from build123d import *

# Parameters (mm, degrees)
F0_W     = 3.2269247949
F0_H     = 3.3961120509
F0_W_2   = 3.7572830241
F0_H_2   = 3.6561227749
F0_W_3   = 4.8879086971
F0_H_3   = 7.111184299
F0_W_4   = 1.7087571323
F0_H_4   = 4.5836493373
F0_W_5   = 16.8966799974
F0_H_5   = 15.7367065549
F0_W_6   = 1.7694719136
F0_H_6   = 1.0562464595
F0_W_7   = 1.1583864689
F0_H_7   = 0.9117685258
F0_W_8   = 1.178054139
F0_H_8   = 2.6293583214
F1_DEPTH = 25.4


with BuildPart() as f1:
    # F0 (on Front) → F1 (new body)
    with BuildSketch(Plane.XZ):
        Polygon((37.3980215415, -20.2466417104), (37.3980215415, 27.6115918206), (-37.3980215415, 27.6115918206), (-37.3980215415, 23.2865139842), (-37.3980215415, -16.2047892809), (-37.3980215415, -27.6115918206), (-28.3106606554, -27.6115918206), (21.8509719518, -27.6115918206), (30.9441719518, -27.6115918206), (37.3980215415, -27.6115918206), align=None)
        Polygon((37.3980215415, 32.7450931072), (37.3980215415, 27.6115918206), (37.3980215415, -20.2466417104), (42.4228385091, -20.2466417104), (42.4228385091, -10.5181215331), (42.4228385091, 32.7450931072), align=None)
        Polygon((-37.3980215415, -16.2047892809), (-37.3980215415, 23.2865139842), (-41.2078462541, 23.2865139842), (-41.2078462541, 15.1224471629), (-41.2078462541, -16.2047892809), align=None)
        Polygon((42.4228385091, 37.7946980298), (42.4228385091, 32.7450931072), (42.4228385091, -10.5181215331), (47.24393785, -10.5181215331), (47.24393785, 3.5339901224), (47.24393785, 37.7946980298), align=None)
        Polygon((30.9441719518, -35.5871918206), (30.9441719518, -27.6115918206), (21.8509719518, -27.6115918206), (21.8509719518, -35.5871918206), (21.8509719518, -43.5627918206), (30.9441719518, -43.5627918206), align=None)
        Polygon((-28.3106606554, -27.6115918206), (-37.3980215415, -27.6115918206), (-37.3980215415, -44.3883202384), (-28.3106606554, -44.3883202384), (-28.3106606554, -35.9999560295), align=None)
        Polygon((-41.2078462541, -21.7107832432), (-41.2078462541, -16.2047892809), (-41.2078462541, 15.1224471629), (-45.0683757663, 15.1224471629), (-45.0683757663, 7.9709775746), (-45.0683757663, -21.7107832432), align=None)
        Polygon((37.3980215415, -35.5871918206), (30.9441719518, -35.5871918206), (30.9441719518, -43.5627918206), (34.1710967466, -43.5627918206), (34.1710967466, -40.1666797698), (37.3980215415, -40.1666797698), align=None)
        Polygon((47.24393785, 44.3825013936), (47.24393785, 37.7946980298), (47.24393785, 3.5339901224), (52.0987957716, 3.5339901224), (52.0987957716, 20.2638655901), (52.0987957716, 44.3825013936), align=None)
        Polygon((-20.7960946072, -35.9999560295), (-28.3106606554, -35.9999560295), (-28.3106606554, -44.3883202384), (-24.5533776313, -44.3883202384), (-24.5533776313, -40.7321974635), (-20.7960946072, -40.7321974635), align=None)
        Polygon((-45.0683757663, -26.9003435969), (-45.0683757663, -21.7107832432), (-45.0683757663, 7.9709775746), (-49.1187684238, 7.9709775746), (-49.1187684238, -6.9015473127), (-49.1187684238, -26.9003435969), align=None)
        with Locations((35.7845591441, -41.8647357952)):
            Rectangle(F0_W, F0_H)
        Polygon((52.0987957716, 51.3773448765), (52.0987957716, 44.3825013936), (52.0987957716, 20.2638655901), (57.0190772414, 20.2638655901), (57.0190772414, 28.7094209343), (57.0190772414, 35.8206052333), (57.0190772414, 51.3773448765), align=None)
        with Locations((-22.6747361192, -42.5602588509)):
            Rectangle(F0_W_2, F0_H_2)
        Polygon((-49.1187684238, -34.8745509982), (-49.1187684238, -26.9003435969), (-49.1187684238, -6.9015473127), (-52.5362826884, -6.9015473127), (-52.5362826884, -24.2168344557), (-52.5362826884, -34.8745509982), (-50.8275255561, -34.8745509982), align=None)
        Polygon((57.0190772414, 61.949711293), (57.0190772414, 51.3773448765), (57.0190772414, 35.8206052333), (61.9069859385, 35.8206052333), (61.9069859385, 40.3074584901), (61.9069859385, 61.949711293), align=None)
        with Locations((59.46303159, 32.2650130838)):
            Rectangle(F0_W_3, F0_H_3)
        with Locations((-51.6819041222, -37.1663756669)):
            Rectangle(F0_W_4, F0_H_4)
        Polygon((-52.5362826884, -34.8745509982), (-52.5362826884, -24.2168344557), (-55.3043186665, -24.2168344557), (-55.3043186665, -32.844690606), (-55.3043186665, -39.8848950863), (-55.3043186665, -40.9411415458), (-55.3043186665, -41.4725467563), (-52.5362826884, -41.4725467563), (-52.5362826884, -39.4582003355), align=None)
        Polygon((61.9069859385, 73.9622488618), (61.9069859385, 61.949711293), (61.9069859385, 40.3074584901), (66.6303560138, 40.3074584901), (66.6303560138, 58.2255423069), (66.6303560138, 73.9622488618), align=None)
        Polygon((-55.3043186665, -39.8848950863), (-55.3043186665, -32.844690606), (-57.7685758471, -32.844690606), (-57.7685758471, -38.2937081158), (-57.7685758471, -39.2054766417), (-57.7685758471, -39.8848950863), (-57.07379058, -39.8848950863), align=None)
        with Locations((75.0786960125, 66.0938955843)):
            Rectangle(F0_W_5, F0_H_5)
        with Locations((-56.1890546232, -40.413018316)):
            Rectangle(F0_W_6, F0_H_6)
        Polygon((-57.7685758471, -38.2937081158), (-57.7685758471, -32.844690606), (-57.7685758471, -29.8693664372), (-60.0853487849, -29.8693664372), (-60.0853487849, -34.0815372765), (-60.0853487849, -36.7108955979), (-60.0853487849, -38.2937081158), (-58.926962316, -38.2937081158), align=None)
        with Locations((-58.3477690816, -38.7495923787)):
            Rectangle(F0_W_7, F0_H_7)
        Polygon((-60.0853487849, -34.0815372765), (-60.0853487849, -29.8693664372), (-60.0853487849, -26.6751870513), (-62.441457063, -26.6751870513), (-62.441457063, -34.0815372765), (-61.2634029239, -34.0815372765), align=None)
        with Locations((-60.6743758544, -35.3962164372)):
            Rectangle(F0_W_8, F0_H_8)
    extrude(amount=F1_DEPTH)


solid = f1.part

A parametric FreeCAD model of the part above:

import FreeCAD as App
import Part
import Sketcher
from FreeCAD import Vector
Q = App.Units.Quantity


def add_polygon(sketch, points):
    """Adds a closed chain of lines whose ends are joined by coincident constraints."""
    first, n = sketch.GeometryCount, len(points)
    for a, b in zip(points, points[1:] + points[:1]):
        sketch.addGeometry(Part.LineSegment(App.Vector(*a, 0), App.Vector(*b, 0)), False)
    for i in range(n):
        sketch.addConstraint(Sketcher.Constraint("Coincident", first + i, 2, first + (i + 1) % n, 1))

doc = App.newDocument("Part")
body = doc.addObject("PartDesign::Body", "Body")

# Sketch on XZ plane
sketch1 = doc.addObject("Sketcher::SketchObject", "Sketch")
body.addObject(sketch1)
sketch1.AttachmentSupport = (doc.XZ_Plane, [""])
sketch1.MapMode = "FlatFace"
add_polygon(sketch1, [(37.4, 27.6), (-37.4, 27.6), (-37.4, 23.3), (-41.2, 23.3), (-41.2, 15.1), (-45.1, 15.1), (-45.1, 8), (-49.1, 8), (-49.1, -6.9), (-52.5, -6.9), (-52.5, -24.2), (-55.3, -24.2), (-55.3, -32.8), (-57.8, -32.8), (-57.8, -29.9), (-60.1, -29.9), (-60.1, -26.7), (-62.4, -26.7), (-62.4, -34.1), (-61.3, -34.1), (-61.3, -36.7), (-60.1, -36.7), (-60.1, -38.3), (-58.9, -38.3), (-58.9, -39.2), (-57.8, -39.2), (-57.8, -39.9), (-57.1, -39.9), (-57.1, -40.9), (-55.3, -40.9), (-55.3, -41.5), (-52.5, -41.5), (-52.5, -39.5), (-50.8, -39.5), (-50.8, -34.9), (-49.1, -34.9), (-49.1, -26.9), (-45.1, -26.9), (-45.1, -21.7), (-41.2, -21.7), (-41.2, -16.2), (-37.4, -16.2), (-37.4, -44.4), (-24.6, -44.4), (-20.8, -44.4), (-20.8, -40.7), (-20.8, -36), (-28.3, -36), (-28.3, -27.6), (21.9, -27.6), (21.9, -43.6), (34.2, -43.6), (37.4, -43.6), (37.4, -40.2), (37.4, -35.6), (30.9, -35.6), (30.9, -27.6), (37.4, -27.6), (37.4, -20.2), (42.4, -20.2), (42.4, -10.5), (47.2, -10.5), (47.2, 3.5), (52.1, 3.5), (52.1, 20.3), (57, 20.3), (57, 28.7), (61.9, 28.7), (61.9, 35.8), (61.9, 40.3), (66.6, 40.3), (66.6, 58.2), (83.5, 58.2), (83.5, 74), (66.6, 74), (61.9, 74), (61.9, 61.9), (57, 61.9), (57, 51.4), (52.1, 51.4), (52.1, 44.4), (47.2, 44.4), (47.2, 37.8), (42.4, 37.8), (42.4, 32.7), (37.4, 32.7)])  # lines 0-85
sketch1.addConstraint([
    Sketcher.Constraint("Horizontal", 0),
    Sketcher.Constraint("Vertical", 1),
    Sketcher.Constraint("Horizontal", 2),
    Sketcher.Constraint("Vertical", 3),
    Sketcher.Constraint("Horizontal", 4),
    Sketcher.Constraint("Vertical", 5),
    Sketcher.Constraint("Horizontal", 6),
    Sketcher.Constraint("Vertical", 7),
    Sketcher.Constraint("Horizontal", 8),
    Sketcher.Constraint("Vertical", 9),
    Sketcher.Constraint("Horizontal", 10),
    Sketcher.Constraint("Vertical", 11),
    Sketcher.Constraint("Horizontal", 12),
    Sketcher.Constraint("Vertical", 13),
    Sketcher.Constraint("Horizontal", 14),
    Sketcher.Constraint("Vertical", 15),
    Sketcher.Constraint("Horizontal", 16),
    Sketcher.Constraint("Vertical", 17),
    Sketcher.Constraint("Horizontal", 18),
    Sketcher.Constraint("Vertical", 19),
    Sketcher.Constraint("Horizontal", 20),
    Sketcher.Constraint("Vertical", 21),
    Sketcher.Constraint("Horizontal", 22),
    Sketcher.Constraint("Vertical", 23),
    Sketcher.Constraint("Horizontal", 24),
    Sketcher.Constraint("Vertical", 25),
    Sketcher.Constraint("Horizontal", 26),
    Sketcher.Constraint("Vertical", 27),
    Sketcher.Constraint("Horizontal", 28),
    Sketcher.Constraint("Vertical", 29),
    Sketcher.Constraint("Horizontal", 30),
    Sketcher.Constraint("Vertical", 31),
    Sketcher.Constraint("Horizontal", 32),
    Sketcher.Constraint("Vertical", 33),
    Sketcher.Constraint("Horizontal", 34),
    Sketcher.Constraint("Vertical", 35),
    Sketcher.Constraint("Horizontal", 36),
    Sketcher.Constraint("Vertical", 37),
    Sketcher.Constraint("Horizontal", 38),
    Sketcher.Constraint("Vertical", 39),
    Sketcher.Constraint("Horizontal", 40),
    Sketcher.Constraint("Vertical", 41),
    Sketcher.Constraint("Horizontal", 42),
    Sketcher.Constraint("Horizontal", 43),
    Sketcher.Constraint("Vertical", 44),
    Sketcher.Constraint("Vertical", 45),
    Sketcher.Constraint("Horizontal", 46),
    Sketcher.Constraint("Vertical", 47),
    Sketcher.Constraint("Horizontal", 48),
    Sketcher.Constraint("Vertical", 49),
    Sketcher.Constraint("Horizontal", 50),
    Sketcher.Constraint("Horizontal", 51),
    Sketcher.Constraint("Vertical", 52),
    Sketcher.Constraint("Vertical", 53),
    Sketcher.Constraint("Horizontal", 54),
    Sketcher.Constraint("Vertical", 55),
    Sketcher.Constraint("Horizontal", 56),
    Sketcher.Constraint("Vertical", 57),
    Sketcher.Constraint("Horizontal", 58),
    Sketcher.Constraint("Vertical", 59),
    Sketcher.Constraint("Horizontal", 60),
    Sketcher.Constraint("Vertical", 61),
    Sketcher.Constraint("Horizontal", 62),
    Sketcher.Constraint("Vertical", 63),
    Sketcher.Constraint("Horizontal", 64),
    Sketcher.Constraint("Vertical", 65),
    Sketcher.Constraint("Horizontal", 66),
    Sketcher.Constraint("Vertical", 67),
    Sketcher.Constraint("Vertical", 68),
    Sketcher.Constraint("Horizontal", 69),
    Sketcher.Constraint("Vertical", 70),
    Sketcher.Constraint("Horizontal", 71),
    Sketcher.Constraint("Vertical", 72),
    Sketcher.Constraint("Horizontal", 73),
    Sketcher.Constraint("Horizontal", 74),
    Sketcher.Constraint("Vertical", 75),
    Sketcher.Constraint("Horizontal", 76),
    Sketcher.Constraint("Vertical", 77),
    Sketcher.Constraint("Horizontal", 78),
    Sketcher.Constraint("Vertical", 79),
    Sketcher.Constraint("Horizontal", 80),
    Sketcher.Constraint("Vertical", 81),
    Sketcher.Constraint("Horizontal", 82),
    Sketcher.Constraint("Vertical", 83),
    Sketcher.Constraint("Horizontal", 84),
    Sketcher.Constraint("Vertical", 85),
    Sketcher.Constraint("Symmetric", 0, 2, 56, 2, -1, 1),
    Sketcher.Constraint("Horizontal", 48, 2, 55, 2),
    Sketcher.Constraint("Vertical", 15, 2, 20, 2),
    Sketcher.Constraint("Vertical", 13, 2, 24, 2),
    Sketcher.Constraint("Vertical", 11, 2, 28, 2),
    Sketcher.Constraint("Vertical", 9, 2, 30, 2),
    Sketcher.Constraint("Vertical", 7, 2, 34, 2),
    Sketcher.Constraint("Vertical", 5, 2, 36, 2),
    Sketcher.Constraint("Vertical", 3, 2, 38, 2),
    Sketcher.Constraint("Vertical", 1, 2, 40, 2),
    Sketcher.Constraint("Vertical", 53, 2, 56, 2),
    Sketcher.Constraint("Vertical", 70, 2, 73, 2),
    Sketcher.Constraint("Vertical", 68, 2, 74, 2),
    Sketcher.Constraint("Vertical", 65, 2, 76, 2),
    Sketcher.Constraint("Vertical", 63, 2, 78, 2),
    Sketcher.Constraint("Vertical", 61, 2, 80, 2),
    Sketcher.Constraint("Vertical", 59, 2, 82, 2),
    Sketcher.Constraint("Vertical", 57, 2, 84, 2),
    Sketcher.Constraint("Equal", 18, 20),
    Sketcher.Constraint("Equal", 22, 24),
    Sketcher.Constraint("Equal", 32, 34),
    Sketcher.Constraint("DistanceY", 49, 2, 49, 1, Q("0.628 in")),
    Sketcher.Constraint("DistanceY", 55, 1, 55, 2, Q("0.314 in")),
    Sketcher.Constraint("DistanceX", 60, 1, 60, 2, Q("4.821099 mm")),
    Sketcher.Constraint("DistanceY", 85, 2, 85, 1, Q("5.133501 mm")),
    Sketcher.Constraint("DistanceX", 4, 2, 4, 1, Q("3.86053 mm")),
    Sketcher.Constraint("DistanceX", 16, 2, 16, 1, Q("2.356108 mm")),
    Sketcher.Constraint("DistanceX", 28, 1, 28, 2, Q("1.769472 mm")),
    Sketcher.Constraint("DistanceX", 54, 2, 54, 1, Q("6.45385 mm")),
    Sketcher.Constraint("DistanceX", 64, 1, 64, 2, Q("4.920281 mm")),
    Sketcher.Constraint("DistanceX", 66, 1, 66, 2, Q("4.887909 mm")),
    Sketcher.Constraint("DistanceX", 69, 1, 69, 2, Q("4.72337 mm")),
    Sketcher.Constraint("DistanceX", 71, 1, 71, 2, Q("16.89668 mm")),
    Sketcher.Constraint("DistanceY", 5, 2, 5, 1, Q("7.15147 mm")),
    Sketcher.Constraint("DistanceY", 15, 1, 15, 2, Q("3.194179 mm")),
    Sketcher.Constraint("DistanceY", 17, 2, 17, 1, Q("7.40635 mm")),
    Sketcher.Constraint("DistanceY", 19, 2, 19, 1, Q("2.629358 mm")),
    Sketcher.Constraint("DistanceY", 23, 2, 23, 1, Q("0.911769 mm")),
    Sketcher.Constraint("DistanceY", 25, 2, 25, 1, Q("0.679418 mm")),
    Sketcher.Constraint("DistanceY", 33, 1, 33, 2, Q("4.583649 mm")),
    Sketcher.Constraint("DistanceY", 37, 1, 37, 2, Q("5.18956 mm")),
    Sketcher.Constraint("DistanceY", 41, 2, 41, 1, Q("28.183531 mm")),
    Sketcher.Constraint("DistanceY", 45, 1, 45, 2, Q("4.732241 mm")),
    Sketcher.Constraint("DistanceY", 57, 1, 57, 2, Q("7.36495 mm")),
    Sketcher.Constraint("DistanceY", 59, 1, 59, 2, Q("9.72852 mm")),
    Sketcher.Constraint("DistanceY", 61, 1, 61, 2, Q("14.052112 mm")),
    Sketcher.Constraint("DistanceY", 31, 2, -1, 1, Q("39.4582 mm")),
    Sketcher.Constraint("DistanceY", -1, 1, 79, 2, Q("44.382501 mm")),
    Sketcher.Constraint("DistanceY", -1, 1, 81, 2, Q("37.794698 mm")),
    Sketcher.Constraint("DistanceX", 0, 2, 0, 1, Q("74.796043 mm")),
    Sketcher.Constraint("DistanceX", 2, 2, 2, 1, Q("3.809825 mm")),
    Sketcher.Constraint("DistanceX", 6, 2, 6, 1, Q("4.050393 mm")),
    Sketcher.Constraint("DistanceX", 8, 2, 8, 1, Q("3.417514 mm")),
    Sketcher.Constraint("DistanceX", 10, 2, 10, 1, Q("2.768036 mm")),
    Sketcher.Constraint("DistanceX", 12, 2, 12, 1, Q("2.464257 mm")),
    Sketcher.Constraint("DistanceX", 14, 2, 14, 1, Q("2.316773 mm")),
    Sketcher.Constraint("DistanceX", 42, 1, 42, 2, Q("12.844644 mm")),
    Sketcher.Constraint("DistanceX", 43, 1, 43, 2, Q("3.757283 mm")),
    Sketcher.Constraint("DistanceX", 46, 2, 46, 1, Q("7.514566 mm")),
    Sketcher.Constraint("DistanceX", 48, 1, 48, 2, Q("50.161633 mm")),
    Sketcher.Constraint("DistanceX", 50, 1, 50, 2, Q("12.320125 mm")),
    Sketcher.Constraint("DistanceX", 58, 1, 58, 2, Q("5.024817 mm")),
    Sketcher.Constraint("DistanceX", 62, 1, 62, 2, Q("4.854858 mm")),
    Sketcher.Constraint("DistanceY", 1, 2, 1, 1, Q("4.325078 mm")),
    Sketcher.Constraint("DistanceY", 3, 2, 3, 1, Q("8.164067 mm")),
    Sketcher.Constraint("DistanceY", 7, 2, 7, 1, Q("14.872525 mm")),
    Sketcher.Constraint("DistanceY", 9, 2, 9, 1, Q("17.315287 mm")),
    Sketcher.Constraint("DistanceY", 11, 2, 11, 1, Q("8.627856 mm")),
    Sketcher.Constraint("DistanceY", 13, 1, 13, 2, Q("2.975324 mm")),
    Sketcher.Constraint("DistanceY", 21, 2, 21, 1, Q("1.582813 mm")),
    Sketcher.Constraint("DistanceY", 27, 2, 27, 1, Q("1.056246 mm")),
    Sketcher.Constraint("DistanceY", 29, 2, 29, 1, Q("0.531405 mm")),
    Sketcher.Constraint("DistanceY", 31, 1, 31, 2, Q("2.014346 mm")),
    Sketcher.Constraint("DistanceY", 35, 1, 35, 2, Q("7.974207 mm")),
    Sketcher.Constraint("DistanceY", 39, 1, 39, 2, Q("5.505994 mm")),
    Sketcher.Constraint("DistanceY", 44, 1, 44, 2, Q("3.656123 mm")),
    Sketcher.Constraint("DistanceY", 52, 1, 52, 2, Q("3.396112 mm")),
    Sketcher.Constraint("DistanceY", 63, 1, 63, 2, Q("16.729875 mm")),
    Sketcher.Constraint("DistanceY", 65, 1, 65, 2, Q("8.445555 mm")),
    Sketcher.Constraint("DistanceY", 67, 1, 67, 2, Q("7.111184 mm")),
    Sketcher.Constraint("DistanceY", 68, 1, 68, 2, Q("4.486853 mm")),
    Sketcher.Constraint("DistanceY", 70, 1, 70, 2, Q("17.918084 mm")),
    Sketcher.Constraint("DistanceY", 72, 1, 72, 2, Q("15.736707 mm")),
    Sketcher.Constraint("DistanceY", 75, 2, 75, 1, Q("12.012538 mm")),
    Sketcher.Constraint("DistanceY", 77, 2, 77, 1, Q("10.572366 mm")),
])
pad1 = doc.addObject("PartDesign::Pad", "Pad")
body.addObject(pad1)
pad1.Profile = sketch1
pad1.Length = Q("1 in")

doc.recompute()
